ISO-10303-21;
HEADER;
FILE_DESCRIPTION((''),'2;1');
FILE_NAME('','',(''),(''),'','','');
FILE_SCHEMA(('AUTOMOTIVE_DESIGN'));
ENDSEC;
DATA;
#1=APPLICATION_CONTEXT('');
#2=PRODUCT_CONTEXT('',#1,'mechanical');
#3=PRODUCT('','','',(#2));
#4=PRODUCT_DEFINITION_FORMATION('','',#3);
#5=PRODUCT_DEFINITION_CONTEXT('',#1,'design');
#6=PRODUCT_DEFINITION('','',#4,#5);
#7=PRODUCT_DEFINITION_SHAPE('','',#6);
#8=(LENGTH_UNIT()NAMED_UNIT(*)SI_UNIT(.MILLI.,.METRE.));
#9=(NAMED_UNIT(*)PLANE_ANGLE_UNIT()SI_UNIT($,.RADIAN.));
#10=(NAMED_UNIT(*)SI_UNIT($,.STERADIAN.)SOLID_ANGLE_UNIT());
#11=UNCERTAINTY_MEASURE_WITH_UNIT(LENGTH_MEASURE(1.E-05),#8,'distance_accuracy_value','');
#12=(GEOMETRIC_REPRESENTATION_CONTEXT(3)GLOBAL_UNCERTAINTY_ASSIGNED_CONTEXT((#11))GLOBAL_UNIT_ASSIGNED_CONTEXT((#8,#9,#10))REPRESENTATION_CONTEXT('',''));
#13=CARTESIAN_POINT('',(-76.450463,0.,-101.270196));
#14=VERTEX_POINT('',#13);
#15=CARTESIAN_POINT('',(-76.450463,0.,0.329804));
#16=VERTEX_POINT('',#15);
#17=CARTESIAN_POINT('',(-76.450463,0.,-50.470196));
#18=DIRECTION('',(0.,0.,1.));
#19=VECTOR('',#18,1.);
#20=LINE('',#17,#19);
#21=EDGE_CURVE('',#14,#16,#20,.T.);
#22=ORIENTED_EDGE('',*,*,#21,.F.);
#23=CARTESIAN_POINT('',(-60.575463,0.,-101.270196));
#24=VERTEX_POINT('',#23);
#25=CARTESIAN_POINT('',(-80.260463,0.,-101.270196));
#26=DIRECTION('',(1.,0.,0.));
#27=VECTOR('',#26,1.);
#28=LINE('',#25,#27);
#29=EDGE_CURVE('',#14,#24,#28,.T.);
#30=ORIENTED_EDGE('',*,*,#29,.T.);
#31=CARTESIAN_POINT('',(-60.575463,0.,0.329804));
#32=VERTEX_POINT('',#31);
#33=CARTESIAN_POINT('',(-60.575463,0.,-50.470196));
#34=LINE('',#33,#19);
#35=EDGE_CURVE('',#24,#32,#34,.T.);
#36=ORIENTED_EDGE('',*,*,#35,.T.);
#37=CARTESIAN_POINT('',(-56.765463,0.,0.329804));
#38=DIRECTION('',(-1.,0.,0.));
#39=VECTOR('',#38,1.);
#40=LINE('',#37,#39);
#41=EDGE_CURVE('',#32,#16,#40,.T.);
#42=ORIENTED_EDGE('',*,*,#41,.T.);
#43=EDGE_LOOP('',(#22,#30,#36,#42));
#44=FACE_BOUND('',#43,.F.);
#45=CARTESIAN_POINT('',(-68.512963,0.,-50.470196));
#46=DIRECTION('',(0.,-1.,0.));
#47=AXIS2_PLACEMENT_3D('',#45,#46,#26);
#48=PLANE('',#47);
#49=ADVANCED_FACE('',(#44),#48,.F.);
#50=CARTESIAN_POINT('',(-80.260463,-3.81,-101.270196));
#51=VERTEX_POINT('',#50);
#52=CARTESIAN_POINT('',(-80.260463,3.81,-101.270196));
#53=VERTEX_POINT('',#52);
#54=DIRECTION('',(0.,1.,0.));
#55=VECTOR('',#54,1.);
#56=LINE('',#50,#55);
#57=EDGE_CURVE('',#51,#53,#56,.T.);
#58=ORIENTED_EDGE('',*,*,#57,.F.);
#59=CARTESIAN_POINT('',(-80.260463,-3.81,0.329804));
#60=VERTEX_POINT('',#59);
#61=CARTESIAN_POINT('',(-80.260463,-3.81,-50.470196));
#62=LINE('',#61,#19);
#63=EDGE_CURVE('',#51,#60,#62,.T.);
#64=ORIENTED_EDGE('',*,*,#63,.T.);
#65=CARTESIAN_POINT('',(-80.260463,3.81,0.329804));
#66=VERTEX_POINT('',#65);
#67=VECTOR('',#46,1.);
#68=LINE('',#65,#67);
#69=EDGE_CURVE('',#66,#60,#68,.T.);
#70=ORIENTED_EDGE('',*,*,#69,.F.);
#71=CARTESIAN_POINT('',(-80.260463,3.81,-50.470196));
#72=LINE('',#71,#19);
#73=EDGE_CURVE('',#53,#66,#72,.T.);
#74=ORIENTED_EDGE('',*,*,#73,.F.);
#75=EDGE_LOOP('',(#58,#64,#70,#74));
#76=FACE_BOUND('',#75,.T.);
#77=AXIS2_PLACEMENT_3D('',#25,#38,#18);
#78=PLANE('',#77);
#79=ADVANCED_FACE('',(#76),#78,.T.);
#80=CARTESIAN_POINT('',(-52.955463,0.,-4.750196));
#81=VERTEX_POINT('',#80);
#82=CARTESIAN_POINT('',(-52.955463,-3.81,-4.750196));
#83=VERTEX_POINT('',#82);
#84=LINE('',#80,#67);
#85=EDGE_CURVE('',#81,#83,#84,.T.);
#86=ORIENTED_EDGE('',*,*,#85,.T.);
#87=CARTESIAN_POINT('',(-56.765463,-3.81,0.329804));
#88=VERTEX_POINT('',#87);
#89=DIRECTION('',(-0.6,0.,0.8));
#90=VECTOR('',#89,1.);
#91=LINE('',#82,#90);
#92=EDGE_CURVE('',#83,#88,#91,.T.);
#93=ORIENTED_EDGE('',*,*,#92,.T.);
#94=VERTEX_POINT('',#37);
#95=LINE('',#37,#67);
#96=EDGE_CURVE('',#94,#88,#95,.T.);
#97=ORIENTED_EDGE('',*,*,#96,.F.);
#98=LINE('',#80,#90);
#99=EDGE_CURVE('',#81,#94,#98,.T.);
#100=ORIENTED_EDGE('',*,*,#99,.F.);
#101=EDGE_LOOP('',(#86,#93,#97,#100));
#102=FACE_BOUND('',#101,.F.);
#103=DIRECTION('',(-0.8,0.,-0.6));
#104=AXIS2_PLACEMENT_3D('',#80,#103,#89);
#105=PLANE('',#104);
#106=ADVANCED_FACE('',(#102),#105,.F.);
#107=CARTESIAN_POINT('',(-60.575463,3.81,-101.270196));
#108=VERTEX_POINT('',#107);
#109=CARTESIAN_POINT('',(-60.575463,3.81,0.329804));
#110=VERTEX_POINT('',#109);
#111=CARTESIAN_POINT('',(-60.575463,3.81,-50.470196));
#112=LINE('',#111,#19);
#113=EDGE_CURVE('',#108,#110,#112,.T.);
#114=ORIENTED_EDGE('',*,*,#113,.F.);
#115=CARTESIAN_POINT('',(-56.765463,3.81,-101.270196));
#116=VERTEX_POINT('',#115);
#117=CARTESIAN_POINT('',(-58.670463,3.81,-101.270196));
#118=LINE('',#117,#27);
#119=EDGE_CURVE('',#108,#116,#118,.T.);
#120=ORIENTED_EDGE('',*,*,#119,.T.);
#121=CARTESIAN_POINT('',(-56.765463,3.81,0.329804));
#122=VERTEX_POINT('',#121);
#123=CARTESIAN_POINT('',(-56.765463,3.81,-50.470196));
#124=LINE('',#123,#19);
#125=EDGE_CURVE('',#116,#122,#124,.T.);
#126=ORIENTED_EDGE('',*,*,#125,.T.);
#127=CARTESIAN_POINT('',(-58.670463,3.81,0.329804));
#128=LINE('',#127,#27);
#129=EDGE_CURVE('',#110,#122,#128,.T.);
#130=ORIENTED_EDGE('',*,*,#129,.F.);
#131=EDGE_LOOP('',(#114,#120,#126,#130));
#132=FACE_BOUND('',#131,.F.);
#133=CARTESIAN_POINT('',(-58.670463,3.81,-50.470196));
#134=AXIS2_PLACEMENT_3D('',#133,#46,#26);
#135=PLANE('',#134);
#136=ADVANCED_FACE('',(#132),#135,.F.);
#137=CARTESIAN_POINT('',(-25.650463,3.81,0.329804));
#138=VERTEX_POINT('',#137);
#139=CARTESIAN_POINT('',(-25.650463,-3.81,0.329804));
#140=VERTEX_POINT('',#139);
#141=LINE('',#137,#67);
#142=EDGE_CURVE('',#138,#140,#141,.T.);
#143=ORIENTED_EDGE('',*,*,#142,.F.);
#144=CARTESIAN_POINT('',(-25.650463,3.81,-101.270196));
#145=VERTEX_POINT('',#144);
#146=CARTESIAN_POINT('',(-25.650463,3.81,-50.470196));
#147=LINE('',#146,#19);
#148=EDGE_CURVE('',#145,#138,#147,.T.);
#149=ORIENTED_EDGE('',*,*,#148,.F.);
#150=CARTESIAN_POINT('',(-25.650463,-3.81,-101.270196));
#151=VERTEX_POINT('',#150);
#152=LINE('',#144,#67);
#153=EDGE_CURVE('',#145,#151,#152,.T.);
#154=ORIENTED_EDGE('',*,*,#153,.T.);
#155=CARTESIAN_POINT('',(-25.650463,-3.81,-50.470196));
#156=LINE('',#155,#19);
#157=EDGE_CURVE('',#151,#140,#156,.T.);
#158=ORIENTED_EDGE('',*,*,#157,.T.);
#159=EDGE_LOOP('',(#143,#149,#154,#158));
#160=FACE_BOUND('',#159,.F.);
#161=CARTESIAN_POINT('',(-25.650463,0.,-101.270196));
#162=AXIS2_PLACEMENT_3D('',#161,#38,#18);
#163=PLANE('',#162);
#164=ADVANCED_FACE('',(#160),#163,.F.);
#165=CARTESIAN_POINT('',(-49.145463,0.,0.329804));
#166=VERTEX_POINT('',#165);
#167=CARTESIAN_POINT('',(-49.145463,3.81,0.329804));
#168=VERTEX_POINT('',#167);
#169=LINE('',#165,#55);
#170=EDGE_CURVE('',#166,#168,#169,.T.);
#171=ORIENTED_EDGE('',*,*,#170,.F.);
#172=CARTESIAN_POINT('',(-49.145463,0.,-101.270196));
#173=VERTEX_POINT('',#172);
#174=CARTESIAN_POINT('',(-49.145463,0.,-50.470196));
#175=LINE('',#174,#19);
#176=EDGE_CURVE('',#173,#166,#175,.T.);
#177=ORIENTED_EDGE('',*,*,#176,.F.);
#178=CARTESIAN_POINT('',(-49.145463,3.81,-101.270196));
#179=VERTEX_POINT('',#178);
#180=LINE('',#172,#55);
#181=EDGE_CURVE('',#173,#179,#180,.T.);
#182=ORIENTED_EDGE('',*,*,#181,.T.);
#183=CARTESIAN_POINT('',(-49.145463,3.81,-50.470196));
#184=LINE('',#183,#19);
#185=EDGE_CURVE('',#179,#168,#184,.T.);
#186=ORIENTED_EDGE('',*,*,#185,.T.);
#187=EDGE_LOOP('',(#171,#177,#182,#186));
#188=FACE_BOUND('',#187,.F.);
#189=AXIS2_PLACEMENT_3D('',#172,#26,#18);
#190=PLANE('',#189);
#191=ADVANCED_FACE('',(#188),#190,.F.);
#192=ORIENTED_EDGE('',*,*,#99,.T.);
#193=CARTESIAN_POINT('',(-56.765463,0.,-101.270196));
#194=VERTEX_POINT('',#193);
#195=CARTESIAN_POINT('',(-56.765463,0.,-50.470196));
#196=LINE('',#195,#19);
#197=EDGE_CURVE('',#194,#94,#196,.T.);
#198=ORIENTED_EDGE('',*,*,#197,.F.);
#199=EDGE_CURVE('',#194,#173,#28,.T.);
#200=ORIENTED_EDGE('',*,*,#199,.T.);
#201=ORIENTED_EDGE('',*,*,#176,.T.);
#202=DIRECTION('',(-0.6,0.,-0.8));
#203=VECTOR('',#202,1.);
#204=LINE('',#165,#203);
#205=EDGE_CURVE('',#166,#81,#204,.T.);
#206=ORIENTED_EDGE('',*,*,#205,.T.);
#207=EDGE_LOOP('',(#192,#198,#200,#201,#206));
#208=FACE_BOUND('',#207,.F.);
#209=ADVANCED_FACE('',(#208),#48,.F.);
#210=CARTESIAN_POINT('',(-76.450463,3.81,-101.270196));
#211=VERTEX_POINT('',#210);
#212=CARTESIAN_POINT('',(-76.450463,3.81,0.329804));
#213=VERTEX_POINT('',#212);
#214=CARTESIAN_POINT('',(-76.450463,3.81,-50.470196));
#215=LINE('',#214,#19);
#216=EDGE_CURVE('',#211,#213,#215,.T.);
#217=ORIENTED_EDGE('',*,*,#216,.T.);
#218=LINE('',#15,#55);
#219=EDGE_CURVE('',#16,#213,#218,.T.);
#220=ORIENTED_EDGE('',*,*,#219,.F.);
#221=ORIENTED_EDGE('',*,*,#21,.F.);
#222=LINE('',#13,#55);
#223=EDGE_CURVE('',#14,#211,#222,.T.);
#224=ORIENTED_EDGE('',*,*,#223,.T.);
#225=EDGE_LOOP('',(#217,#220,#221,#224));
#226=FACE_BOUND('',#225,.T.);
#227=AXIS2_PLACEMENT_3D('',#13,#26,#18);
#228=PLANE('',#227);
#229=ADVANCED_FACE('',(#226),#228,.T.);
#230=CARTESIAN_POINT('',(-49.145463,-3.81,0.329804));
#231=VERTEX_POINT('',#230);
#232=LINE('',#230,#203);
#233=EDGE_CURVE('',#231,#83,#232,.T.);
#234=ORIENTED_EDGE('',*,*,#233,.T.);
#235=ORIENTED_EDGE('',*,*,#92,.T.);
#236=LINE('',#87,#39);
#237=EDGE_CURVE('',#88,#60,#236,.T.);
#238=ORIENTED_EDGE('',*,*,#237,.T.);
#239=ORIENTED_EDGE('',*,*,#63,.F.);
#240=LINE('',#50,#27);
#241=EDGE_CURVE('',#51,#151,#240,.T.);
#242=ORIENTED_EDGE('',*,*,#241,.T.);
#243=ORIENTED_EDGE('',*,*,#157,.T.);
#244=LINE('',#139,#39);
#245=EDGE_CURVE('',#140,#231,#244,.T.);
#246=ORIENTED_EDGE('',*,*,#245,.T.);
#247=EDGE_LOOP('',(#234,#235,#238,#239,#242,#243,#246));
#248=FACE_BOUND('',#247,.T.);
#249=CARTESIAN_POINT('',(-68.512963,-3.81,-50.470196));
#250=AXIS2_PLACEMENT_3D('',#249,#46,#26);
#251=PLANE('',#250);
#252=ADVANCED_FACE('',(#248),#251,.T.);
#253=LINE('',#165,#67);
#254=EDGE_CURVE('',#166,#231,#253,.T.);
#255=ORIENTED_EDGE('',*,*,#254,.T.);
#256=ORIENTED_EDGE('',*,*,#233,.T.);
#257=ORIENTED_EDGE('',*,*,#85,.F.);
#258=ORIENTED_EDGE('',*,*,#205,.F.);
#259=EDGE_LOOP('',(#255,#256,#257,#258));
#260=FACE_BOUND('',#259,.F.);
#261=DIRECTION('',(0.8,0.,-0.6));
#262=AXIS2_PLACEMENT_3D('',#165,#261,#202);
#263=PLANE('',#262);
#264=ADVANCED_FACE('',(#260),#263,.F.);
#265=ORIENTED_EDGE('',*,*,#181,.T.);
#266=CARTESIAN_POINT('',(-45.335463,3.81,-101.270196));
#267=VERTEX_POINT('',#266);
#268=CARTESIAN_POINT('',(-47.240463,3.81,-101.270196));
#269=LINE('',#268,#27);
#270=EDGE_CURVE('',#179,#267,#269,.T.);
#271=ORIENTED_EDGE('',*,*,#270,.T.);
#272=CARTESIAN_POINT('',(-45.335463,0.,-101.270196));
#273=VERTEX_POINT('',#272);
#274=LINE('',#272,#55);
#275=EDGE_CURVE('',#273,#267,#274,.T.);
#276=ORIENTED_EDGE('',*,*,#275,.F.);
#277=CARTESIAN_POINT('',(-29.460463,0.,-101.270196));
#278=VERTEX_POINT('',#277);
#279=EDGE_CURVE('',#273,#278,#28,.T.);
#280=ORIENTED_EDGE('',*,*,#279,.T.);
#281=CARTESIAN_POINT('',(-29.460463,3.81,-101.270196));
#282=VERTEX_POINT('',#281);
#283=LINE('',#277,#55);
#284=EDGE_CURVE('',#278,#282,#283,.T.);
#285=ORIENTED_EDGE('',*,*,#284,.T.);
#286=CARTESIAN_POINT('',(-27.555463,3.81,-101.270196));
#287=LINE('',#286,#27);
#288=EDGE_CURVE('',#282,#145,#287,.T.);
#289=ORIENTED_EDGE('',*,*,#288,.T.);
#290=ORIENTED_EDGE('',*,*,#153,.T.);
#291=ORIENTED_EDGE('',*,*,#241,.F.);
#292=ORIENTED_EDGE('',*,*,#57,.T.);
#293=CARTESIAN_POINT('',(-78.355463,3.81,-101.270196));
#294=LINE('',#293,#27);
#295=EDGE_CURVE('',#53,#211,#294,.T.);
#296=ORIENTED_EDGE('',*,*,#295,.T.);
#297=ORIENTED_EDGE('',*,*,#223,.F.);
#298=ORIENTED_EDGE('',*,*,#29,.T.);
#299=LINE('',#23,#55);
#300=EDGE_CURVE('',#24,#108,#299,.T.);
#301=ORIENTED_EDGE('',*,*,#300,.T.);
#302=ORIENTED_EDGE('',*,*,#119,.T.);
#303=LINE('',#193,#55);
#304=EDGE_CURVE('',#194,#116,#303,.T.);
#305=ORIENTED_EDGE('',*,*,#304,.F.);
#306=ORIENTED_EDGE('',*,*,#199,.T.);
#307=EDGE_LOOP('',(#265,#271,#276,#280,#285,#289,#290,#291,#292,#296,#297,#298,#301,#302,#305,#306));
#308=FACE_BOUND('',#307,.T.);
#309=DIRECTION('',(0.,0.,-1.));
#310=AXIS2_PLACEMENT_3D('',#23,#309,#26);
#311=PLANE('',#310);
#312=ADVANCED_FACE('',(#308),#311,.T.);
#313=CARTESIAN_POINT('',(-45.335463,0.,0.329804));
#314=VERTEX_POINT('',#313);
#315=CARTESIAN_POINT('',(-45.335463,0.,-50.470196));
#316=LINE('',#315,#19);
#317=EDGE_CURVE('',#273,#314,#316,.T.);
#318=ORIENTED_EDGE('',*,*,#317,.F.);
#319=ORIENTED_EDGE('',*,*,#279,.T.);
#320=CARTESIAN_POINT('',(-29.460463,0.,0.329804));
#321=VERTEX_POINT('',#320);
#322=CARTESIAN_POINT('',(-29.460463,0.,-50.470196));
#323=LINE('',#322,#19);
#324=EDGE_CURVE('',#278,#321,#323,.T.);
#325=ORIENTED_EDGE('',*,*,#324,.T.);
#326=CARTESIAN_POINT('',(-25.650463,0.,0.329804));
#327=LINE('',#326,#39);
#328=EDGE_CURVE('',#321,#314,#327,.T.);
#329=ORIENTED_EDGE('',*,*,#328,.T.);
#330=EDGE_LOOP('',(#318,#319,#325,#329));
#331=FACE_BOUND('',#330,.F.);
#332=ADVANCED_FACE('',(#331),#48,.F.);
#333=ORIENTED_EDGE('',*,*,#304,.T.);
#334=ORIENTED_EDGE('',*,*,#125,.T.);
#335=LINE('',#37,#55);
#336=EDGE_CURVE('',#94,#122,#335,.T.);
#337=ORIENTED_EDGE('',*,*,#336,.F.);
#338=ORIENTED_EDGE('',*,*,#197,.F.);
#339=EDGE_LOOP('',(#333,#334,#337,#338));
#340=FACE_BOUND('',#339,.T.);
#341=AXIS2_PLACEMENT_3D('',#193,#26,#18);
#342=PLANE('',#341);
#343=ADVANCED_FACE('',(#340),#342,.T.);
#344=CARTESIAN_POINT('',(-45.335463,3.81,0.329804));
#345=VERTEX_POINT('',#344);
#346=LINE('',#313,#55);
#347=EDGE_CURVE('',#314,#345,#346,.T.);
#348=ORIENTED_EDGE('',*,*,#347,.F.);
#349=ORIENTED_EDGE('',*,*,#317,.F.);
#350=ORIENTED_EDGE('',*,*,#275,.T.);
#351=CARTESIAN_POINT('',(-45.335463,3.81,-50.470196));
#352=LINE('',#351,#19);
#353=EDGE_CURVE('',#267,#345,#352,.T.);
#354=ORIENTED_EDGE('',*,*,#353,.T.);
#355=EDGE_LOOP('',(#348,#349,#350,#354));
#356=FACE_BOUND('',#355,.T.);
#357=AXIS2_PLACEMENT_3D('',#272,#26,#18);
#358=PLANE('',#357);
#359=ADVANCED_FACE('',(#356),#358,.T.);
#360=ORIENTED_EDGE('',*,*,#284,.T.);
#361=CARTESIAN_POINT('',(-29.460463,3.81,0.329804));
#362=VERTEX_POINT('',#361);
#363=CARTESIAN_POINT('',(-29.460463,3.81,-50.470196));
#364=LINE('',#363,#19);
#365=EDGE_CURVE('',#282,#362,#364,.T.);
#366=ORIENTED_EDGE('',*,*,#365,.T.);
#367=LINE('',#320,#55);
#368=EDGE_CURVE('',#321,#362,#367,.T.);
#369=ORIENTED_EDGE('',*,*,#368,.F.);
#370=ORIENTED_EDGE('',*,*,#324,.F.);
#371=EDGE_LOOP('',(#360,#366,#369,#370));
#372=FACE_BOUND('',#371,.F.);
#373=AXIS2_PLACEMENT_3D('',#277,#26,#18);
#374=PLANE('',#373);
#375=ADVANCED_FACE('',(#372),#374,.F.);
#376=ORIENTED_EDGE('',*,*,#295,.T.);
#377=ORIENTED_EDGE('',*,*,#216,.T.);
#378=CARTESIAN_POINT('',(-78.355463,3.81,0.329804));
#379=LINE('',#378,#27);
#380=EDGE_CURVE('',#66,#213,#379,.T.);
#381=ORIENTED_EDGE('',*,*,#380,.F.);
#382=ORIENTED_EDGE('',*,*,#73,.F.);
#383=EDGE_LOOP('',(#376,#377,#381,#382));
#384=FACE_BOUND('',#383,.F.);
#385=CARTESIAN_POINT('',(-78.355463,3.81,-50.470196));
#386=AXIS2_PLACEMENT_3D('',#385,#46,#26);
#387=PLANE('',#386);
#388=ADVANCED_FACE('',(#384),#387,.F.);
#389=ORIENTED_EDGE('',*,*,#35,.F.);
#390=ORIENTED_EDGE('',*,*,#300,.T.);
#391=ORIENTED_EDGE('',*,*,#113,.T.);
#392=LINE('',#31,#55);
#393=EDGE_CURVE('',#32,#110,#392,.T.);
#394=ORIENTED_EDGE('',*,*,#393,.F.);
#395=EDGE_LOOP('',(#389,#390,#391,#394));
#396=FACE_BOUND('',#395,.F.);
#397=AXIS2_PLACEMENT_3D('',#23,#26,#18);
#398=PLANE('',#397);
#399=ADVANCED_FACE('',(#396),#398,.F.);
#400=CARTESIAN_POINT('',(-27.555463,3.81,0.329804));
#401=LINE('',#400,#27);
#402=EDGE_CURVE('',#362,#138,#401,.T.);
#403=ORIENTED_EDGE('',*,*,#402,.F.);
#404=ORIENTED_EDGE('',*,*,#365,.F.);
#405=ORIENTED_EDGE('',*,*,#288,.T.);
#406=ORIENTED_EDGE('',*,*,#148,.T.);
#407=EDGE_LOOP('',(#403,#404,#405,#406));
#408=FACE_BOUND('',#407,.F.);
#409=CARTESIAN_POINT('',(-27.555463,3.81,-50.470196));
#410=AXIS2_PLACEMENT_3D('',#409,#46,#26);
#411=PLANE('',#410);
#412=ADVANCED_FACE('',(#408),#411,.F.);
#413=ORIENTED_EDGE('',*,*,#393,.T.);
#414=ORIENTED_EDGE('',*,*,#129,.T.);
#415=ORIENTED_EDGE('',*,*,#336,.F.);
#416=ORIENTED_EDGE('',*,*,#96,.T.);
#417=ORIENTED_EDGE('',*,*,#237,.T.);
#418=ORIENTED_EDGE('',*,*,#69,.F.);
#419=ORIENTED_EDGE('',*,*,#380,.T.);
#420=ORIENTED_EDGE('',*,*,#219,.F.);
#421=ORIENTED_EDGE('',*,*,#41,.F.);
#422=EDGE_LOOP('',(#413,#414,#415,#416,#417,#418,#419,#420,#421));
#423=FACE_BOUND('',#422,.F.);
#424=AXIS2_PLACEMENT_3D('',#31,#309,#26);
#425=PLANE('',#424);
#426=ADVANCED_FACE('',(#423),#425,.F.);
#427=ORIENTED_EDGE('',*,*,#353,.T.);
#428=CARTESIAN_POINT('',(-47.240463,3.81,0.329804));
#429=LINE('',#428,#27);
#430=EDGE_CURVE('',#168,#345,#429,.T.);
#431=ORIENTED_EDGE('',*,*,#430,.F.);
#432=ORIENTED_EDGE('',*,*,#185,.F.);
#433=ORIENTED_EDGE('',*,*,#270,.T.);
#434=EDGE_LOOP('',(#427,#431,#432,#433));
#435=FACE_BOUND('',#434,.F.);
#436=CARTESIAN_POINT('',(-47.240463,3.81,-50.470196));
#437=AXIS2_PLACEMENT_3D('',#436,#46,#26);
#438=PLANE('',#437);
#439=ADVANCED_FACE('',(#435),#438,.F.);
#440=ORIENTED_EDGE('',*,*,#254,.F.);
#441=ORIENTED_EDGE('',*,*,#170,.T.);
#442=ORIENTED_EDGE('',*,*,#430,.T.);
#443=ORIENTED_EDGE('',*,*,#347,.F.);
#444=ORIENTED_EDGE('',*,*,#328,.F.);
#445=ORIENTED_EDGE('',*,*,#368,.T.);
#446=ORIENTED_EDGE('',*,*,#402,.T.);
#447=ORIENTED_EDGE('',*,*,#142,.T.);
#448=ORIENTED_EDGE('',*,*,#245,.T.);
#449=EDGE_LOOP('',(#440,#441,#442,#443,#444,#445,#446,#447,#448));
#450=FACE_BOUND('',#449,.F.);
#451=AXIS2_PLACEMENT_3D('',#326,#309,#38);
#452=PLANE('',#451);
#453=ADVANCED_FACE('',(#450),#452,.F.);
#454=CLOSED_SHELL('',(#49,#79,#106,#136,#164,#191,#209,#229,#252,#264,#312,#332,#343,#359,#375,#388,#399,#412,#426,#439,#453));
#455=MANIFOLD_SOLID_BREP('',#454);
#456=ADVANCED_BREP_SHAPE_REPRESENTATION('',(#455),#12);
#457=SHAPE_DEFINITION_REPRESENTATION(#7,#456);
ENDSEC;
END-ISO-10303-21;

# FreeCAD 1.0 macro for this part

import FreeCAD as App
import Part
import Sketcher
from FreeCAD import Vector
Q = App.Units.Quantity


def add_polygon(sketch, points):
    """Adds a closed chain of lines whose ends are joined by coincident constraints."""
    first, n = sketch.GeometryCount, len(points)
    for a, b in zip(points, points[1:] + points[:1]):
        sketch.addGeometry(Part.LineSegment(App.Vector(*a, 0), App.Vector(*b, 0)), False)
    for i in range(n):
        sketch.addConstraint(Sketcher.Constraint("Coincident", first + i, 2, first + (i + 1) % n, 1))

doc = App.newDocument("Part")
params = doc.addObject("Spreadsheet::Sheet", "Params")
for row, (alias, value) in enumerate([
    ("sketch1_height", "4 in"),
    ("sketch1_width", "2.15 in"),
    ("pad1_length", "0.15 in"),
    ("sketch2_height", "4 in"),
    ("sketch2_width", "0.15 in"),
    ("pad2_length", "0.15 in"),
], start=1):
    params.set(f"A{row}", alias)
    params.set(f"B{row}", "=" + value)
    params.setAlias(f"B{row}", alias)

body = doc.addObject("PartDesign::Body", "Body")

# Sketch on XZ plane
sketch1 = doc.addObject("Sketcher::SketchObject", "Sketch")
body.addObject(sketch1)
sketch1.AttachmentSupport = (doc.XZ_Plane, [""])
sketch1.MapMode = "FlatFace"
add_polygon(sketch1, [(-57, 0), (-80, 0), (-80, -101), (-26, -101), (-26, 0), (-49, 0), (-53, -5)])  # lines 0-6
sketch1.addConstraint([
    Sketcher.Constraint("Horizontal", 0),
    Sketcher.Constraint("Vertical", 1),
    Sketcher.Constraint("Horizontal", 2),
    Sketcher.Constraint("Vertical", 3),
    Sketcher.Constraint("Horizontal", 4),
    Sketcher.Constraint("Horizontal", 0, 2, 3, 2),
    Sketcher.Constraint("Equal", 0, 4),
    Sketcher.Constraint("Equal", 5, 6),
    Sketcher.Constraint("DistanceY", 1, 2, 1, 1, Q("4 in")),
    Sketcher.Constraint("DistanceX", 2, 1, 2, 2, Q("2.15 in")),
    Sketcher.Constraint("DistanceY", 5, 2, 4, 2, Q("0.2 in")),
    Sketcher.Constraint("DistanceX", 6, 2, 4, 2, Q("0.3 in")),
    Sketcher.Constraint("DistanceX", 0, 2, -1, 1, 80.260463),
    Sketcher.Constraint("DistanceY", -1, 1, 0, 2, 0.329804),
])
sketch1.setExpression("Constraints[15]", "Params.sketch1_height")
sketch1.setExpression("Constraints[16]", "Params.sketch1_width")
pad1 = doc.addObject("PartDesign::Pad", "Pad")
body.addObject(pad1)
pad1.Profile = sketch1
pad1.setExpression("Length", "Params.pad1_length")

# Sketch on XZ plane
sketch2 = doc.addObject("Sketcher::SketchObject", "Sketch001")
body.addObject(sketch2)
sketch2.AttachmentSupport = (doc.XZ_Plane, [""])
sketch2.MapMode = "FlatFace"
add_polygon(sketch2, [(-60.6, 0.3), (-60.6, -101.3), (-56.8, -101.3), (-56.8, 0.3)])  # lines 0-3
add_polygon(sketch2, [(-49.1, 0.3), (-49.1, -101.3), (-45.3, -101.3), (-45.3, 0.3)])  # lines 4-7
add_polygon(sketch2, [(-29.5, 0.3), (-29.5, -101.3), (-25.7, -101.3), (-25.7, 0.3)])  # lines 8-11
add_polygon(sketch2, [(-80.3, 0.3), (-80.3, -101.3), (-76.5, -101.3), (-76.5, 0.3)])  # lines 12-15
sketch2.addConstraint([
    Sketcher.Constraint("Vertical", 0),
    Sketcher.Constraint("Horizontal", 1),
    Sketcher.Constraint("Vertical", 2),
    Sketcher.Constraint("Horizontal", 3),
    Sketcher.Constraint("Vertical", 4),
    Sketcher.Constraint("Horizontal", 5),
    Sketcher.Constraint("Vertical", 6),
    Sketcher.Constraint("Horizontal", 7),
    Sketcher.Constraint("Vertical", 8),
    Sketcher.Constraint("Horizontal", 9),
    Sketcher.Constraint("Vertical", 10),
    Sketcher.Constraint("Horizontal", 11),
    Sketcher.Constraint("Vertical", 12),
    Sketcher.Constraint("Horizontal", 13),
    Sketcher.Constraint("Vertical", 14),
    Sketcher.Constraint("Horizontal", 15),
    Sketcher.Constraint("Horizontal", 1, 2, 4, 2),
    Sketcher.Constraint("Horizontal", 3, 2, 6, 2),
    Sketcher.Constraint("Horizontal", 5, 2, 8, 2),
    Sketcher.Constraint("Horizontal", 7, 2, 10, 2),
    Sketcher.Constraint("Horizontal", 9, 2, 12, 2),
    Sketcher.Constraint("Horizontal", 11, 2, 14, 2),
    Sketcher.Constraint("Equal", 3, 5),
    Sketcher.Constraint("Equal", 7, 9),
    Sketcher.Constraint("Equal", 11, 13),
    Sketcher.Constraint("DistanceY", 0, 2, 0, 1, Q("4 in")),
    Sketcher.Constraint("DistanceX", 12, 2, 8, 2, Q("2 in")),
    Sketcher.Constraint("DistanceX", 1, 1, 1, 2, Q("0.15 in")),
    Sketcher.Constraint("DistanceX", 1, 2, 4, 2, Q("0.3 in")),
    Sketcher.Constraint("DistanceX", 5, 2, 8, 2, Q("0.625 in")),
    Sketcher.Constraint("DistanceX", 0, 2, -1, 1, 60.575463),
    Sketcher.Constraint("DistanceY", 0, 2, -1, 1, 101.270196),
])
sketch2.setExpression("Constraints[41]", "Params.sketch2_height")
sketch2.setExpression("Constraints[43]", "Params.sketch2_width")
pad2 = doc.addObject("PartDesign::Pad", "Pad001")
body.addObject(pad2)
pad2.Profile = sketch2
pad2.setExpression("Length", "Params.pad2_length")
pad2.Reversed = True

doc.recompute()
